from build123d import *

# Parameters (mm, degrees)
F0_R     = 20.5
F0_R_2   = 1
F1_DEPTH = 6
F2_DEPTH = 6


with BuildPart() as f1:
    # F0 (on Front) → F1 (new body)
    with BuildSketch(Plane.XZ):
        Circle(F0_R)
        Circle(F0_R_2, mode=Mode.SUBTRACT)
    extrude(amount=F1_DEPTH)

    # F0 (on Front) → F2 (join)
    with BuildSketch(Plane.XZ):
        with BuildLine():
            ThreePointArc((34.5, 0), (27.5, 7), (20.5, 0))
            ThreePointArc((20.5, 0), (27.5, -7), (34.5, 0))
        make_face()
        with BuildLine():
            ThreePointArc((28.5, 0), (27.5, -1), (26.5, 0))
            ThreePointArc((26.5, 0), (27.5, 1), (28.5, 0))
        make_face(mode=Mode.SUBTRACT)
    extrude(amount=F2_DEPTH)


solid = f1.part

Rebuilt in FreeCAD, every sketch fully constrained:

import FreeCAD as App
import Part
import Sketcher

doc = App.newDocument("Part")
body = doc.addObject("PartDesign::Body", "Body")
body.AllowCompound = True

sketch1 = doc.addObject("Sketcher::SketchObject", "Sketch")
body.addObject(sketch1)
sketch1.AttachmentSupport = (doc.XZ_Plane, [""])
sketch1.MapMode = "FlatFace"
sketch1.addGeometry([
    Part.Circle(App.Vector(0, 0, 0), App.Vector(0, 0, 1), 20.5),
    Part.Circle(App.Vector(0, 0, 0), App.Vector(0, 0, 1), 1),
], False)
sketch1.addConstraint([
    Sketcher.Constraint("Coincident", 0, 3, -1, 1),
    Sketcher.Constraint("Coincident", 1, 3, -1, 1),
    Sketcher.Constraint("Diameter", 0, 41.0),
    Sketcher.Constraint("Diameter", 1, 2.0),
])
pad1 = doc.addObject("PartDesign::Pad", "Pad")
body.addObject(pad1)
pad1.Profile = sketch1
pad1.Length = 6

sketch2 = doc.addObject("Sketcher::SketchObject", "Sketch001")
body.addObject(sketch2)
sketch2.AttachmentSupport = (doc.XZ_Plane, [""])
sketch2.MapMode = "FlatFace"
sketch2.addGeometry([
    Part.Circle(App.Vector(27.5, 0, 0), App.Vector(0, 0, 1), 7),
    Part.Circle(App.Vector(27.5, 0, 0), App.Vector(0, 0, 1), 1),
], False)
sketch2.addConstraint([
    Sketcher.Constraint("Coincident", 1, 3, 0, 3),
    Sketcher.Constraint("PointOnObject", 0, 3, -1),
    Sketcher.Constraint("Diameter", 0, 14.0),
    Sketcher.Constraint("Diameter", 1, 2.0),
    Sketcher.Constraint("DistanceX", -1, 1, 0, 3, 27.5),
])
pad2 = doc.addObject("PartDesign::Pad", "Pad001")
body.addObject(pad2)
pad2.Profile = sketch2
pad2.Length = 6

doc.recompute()
